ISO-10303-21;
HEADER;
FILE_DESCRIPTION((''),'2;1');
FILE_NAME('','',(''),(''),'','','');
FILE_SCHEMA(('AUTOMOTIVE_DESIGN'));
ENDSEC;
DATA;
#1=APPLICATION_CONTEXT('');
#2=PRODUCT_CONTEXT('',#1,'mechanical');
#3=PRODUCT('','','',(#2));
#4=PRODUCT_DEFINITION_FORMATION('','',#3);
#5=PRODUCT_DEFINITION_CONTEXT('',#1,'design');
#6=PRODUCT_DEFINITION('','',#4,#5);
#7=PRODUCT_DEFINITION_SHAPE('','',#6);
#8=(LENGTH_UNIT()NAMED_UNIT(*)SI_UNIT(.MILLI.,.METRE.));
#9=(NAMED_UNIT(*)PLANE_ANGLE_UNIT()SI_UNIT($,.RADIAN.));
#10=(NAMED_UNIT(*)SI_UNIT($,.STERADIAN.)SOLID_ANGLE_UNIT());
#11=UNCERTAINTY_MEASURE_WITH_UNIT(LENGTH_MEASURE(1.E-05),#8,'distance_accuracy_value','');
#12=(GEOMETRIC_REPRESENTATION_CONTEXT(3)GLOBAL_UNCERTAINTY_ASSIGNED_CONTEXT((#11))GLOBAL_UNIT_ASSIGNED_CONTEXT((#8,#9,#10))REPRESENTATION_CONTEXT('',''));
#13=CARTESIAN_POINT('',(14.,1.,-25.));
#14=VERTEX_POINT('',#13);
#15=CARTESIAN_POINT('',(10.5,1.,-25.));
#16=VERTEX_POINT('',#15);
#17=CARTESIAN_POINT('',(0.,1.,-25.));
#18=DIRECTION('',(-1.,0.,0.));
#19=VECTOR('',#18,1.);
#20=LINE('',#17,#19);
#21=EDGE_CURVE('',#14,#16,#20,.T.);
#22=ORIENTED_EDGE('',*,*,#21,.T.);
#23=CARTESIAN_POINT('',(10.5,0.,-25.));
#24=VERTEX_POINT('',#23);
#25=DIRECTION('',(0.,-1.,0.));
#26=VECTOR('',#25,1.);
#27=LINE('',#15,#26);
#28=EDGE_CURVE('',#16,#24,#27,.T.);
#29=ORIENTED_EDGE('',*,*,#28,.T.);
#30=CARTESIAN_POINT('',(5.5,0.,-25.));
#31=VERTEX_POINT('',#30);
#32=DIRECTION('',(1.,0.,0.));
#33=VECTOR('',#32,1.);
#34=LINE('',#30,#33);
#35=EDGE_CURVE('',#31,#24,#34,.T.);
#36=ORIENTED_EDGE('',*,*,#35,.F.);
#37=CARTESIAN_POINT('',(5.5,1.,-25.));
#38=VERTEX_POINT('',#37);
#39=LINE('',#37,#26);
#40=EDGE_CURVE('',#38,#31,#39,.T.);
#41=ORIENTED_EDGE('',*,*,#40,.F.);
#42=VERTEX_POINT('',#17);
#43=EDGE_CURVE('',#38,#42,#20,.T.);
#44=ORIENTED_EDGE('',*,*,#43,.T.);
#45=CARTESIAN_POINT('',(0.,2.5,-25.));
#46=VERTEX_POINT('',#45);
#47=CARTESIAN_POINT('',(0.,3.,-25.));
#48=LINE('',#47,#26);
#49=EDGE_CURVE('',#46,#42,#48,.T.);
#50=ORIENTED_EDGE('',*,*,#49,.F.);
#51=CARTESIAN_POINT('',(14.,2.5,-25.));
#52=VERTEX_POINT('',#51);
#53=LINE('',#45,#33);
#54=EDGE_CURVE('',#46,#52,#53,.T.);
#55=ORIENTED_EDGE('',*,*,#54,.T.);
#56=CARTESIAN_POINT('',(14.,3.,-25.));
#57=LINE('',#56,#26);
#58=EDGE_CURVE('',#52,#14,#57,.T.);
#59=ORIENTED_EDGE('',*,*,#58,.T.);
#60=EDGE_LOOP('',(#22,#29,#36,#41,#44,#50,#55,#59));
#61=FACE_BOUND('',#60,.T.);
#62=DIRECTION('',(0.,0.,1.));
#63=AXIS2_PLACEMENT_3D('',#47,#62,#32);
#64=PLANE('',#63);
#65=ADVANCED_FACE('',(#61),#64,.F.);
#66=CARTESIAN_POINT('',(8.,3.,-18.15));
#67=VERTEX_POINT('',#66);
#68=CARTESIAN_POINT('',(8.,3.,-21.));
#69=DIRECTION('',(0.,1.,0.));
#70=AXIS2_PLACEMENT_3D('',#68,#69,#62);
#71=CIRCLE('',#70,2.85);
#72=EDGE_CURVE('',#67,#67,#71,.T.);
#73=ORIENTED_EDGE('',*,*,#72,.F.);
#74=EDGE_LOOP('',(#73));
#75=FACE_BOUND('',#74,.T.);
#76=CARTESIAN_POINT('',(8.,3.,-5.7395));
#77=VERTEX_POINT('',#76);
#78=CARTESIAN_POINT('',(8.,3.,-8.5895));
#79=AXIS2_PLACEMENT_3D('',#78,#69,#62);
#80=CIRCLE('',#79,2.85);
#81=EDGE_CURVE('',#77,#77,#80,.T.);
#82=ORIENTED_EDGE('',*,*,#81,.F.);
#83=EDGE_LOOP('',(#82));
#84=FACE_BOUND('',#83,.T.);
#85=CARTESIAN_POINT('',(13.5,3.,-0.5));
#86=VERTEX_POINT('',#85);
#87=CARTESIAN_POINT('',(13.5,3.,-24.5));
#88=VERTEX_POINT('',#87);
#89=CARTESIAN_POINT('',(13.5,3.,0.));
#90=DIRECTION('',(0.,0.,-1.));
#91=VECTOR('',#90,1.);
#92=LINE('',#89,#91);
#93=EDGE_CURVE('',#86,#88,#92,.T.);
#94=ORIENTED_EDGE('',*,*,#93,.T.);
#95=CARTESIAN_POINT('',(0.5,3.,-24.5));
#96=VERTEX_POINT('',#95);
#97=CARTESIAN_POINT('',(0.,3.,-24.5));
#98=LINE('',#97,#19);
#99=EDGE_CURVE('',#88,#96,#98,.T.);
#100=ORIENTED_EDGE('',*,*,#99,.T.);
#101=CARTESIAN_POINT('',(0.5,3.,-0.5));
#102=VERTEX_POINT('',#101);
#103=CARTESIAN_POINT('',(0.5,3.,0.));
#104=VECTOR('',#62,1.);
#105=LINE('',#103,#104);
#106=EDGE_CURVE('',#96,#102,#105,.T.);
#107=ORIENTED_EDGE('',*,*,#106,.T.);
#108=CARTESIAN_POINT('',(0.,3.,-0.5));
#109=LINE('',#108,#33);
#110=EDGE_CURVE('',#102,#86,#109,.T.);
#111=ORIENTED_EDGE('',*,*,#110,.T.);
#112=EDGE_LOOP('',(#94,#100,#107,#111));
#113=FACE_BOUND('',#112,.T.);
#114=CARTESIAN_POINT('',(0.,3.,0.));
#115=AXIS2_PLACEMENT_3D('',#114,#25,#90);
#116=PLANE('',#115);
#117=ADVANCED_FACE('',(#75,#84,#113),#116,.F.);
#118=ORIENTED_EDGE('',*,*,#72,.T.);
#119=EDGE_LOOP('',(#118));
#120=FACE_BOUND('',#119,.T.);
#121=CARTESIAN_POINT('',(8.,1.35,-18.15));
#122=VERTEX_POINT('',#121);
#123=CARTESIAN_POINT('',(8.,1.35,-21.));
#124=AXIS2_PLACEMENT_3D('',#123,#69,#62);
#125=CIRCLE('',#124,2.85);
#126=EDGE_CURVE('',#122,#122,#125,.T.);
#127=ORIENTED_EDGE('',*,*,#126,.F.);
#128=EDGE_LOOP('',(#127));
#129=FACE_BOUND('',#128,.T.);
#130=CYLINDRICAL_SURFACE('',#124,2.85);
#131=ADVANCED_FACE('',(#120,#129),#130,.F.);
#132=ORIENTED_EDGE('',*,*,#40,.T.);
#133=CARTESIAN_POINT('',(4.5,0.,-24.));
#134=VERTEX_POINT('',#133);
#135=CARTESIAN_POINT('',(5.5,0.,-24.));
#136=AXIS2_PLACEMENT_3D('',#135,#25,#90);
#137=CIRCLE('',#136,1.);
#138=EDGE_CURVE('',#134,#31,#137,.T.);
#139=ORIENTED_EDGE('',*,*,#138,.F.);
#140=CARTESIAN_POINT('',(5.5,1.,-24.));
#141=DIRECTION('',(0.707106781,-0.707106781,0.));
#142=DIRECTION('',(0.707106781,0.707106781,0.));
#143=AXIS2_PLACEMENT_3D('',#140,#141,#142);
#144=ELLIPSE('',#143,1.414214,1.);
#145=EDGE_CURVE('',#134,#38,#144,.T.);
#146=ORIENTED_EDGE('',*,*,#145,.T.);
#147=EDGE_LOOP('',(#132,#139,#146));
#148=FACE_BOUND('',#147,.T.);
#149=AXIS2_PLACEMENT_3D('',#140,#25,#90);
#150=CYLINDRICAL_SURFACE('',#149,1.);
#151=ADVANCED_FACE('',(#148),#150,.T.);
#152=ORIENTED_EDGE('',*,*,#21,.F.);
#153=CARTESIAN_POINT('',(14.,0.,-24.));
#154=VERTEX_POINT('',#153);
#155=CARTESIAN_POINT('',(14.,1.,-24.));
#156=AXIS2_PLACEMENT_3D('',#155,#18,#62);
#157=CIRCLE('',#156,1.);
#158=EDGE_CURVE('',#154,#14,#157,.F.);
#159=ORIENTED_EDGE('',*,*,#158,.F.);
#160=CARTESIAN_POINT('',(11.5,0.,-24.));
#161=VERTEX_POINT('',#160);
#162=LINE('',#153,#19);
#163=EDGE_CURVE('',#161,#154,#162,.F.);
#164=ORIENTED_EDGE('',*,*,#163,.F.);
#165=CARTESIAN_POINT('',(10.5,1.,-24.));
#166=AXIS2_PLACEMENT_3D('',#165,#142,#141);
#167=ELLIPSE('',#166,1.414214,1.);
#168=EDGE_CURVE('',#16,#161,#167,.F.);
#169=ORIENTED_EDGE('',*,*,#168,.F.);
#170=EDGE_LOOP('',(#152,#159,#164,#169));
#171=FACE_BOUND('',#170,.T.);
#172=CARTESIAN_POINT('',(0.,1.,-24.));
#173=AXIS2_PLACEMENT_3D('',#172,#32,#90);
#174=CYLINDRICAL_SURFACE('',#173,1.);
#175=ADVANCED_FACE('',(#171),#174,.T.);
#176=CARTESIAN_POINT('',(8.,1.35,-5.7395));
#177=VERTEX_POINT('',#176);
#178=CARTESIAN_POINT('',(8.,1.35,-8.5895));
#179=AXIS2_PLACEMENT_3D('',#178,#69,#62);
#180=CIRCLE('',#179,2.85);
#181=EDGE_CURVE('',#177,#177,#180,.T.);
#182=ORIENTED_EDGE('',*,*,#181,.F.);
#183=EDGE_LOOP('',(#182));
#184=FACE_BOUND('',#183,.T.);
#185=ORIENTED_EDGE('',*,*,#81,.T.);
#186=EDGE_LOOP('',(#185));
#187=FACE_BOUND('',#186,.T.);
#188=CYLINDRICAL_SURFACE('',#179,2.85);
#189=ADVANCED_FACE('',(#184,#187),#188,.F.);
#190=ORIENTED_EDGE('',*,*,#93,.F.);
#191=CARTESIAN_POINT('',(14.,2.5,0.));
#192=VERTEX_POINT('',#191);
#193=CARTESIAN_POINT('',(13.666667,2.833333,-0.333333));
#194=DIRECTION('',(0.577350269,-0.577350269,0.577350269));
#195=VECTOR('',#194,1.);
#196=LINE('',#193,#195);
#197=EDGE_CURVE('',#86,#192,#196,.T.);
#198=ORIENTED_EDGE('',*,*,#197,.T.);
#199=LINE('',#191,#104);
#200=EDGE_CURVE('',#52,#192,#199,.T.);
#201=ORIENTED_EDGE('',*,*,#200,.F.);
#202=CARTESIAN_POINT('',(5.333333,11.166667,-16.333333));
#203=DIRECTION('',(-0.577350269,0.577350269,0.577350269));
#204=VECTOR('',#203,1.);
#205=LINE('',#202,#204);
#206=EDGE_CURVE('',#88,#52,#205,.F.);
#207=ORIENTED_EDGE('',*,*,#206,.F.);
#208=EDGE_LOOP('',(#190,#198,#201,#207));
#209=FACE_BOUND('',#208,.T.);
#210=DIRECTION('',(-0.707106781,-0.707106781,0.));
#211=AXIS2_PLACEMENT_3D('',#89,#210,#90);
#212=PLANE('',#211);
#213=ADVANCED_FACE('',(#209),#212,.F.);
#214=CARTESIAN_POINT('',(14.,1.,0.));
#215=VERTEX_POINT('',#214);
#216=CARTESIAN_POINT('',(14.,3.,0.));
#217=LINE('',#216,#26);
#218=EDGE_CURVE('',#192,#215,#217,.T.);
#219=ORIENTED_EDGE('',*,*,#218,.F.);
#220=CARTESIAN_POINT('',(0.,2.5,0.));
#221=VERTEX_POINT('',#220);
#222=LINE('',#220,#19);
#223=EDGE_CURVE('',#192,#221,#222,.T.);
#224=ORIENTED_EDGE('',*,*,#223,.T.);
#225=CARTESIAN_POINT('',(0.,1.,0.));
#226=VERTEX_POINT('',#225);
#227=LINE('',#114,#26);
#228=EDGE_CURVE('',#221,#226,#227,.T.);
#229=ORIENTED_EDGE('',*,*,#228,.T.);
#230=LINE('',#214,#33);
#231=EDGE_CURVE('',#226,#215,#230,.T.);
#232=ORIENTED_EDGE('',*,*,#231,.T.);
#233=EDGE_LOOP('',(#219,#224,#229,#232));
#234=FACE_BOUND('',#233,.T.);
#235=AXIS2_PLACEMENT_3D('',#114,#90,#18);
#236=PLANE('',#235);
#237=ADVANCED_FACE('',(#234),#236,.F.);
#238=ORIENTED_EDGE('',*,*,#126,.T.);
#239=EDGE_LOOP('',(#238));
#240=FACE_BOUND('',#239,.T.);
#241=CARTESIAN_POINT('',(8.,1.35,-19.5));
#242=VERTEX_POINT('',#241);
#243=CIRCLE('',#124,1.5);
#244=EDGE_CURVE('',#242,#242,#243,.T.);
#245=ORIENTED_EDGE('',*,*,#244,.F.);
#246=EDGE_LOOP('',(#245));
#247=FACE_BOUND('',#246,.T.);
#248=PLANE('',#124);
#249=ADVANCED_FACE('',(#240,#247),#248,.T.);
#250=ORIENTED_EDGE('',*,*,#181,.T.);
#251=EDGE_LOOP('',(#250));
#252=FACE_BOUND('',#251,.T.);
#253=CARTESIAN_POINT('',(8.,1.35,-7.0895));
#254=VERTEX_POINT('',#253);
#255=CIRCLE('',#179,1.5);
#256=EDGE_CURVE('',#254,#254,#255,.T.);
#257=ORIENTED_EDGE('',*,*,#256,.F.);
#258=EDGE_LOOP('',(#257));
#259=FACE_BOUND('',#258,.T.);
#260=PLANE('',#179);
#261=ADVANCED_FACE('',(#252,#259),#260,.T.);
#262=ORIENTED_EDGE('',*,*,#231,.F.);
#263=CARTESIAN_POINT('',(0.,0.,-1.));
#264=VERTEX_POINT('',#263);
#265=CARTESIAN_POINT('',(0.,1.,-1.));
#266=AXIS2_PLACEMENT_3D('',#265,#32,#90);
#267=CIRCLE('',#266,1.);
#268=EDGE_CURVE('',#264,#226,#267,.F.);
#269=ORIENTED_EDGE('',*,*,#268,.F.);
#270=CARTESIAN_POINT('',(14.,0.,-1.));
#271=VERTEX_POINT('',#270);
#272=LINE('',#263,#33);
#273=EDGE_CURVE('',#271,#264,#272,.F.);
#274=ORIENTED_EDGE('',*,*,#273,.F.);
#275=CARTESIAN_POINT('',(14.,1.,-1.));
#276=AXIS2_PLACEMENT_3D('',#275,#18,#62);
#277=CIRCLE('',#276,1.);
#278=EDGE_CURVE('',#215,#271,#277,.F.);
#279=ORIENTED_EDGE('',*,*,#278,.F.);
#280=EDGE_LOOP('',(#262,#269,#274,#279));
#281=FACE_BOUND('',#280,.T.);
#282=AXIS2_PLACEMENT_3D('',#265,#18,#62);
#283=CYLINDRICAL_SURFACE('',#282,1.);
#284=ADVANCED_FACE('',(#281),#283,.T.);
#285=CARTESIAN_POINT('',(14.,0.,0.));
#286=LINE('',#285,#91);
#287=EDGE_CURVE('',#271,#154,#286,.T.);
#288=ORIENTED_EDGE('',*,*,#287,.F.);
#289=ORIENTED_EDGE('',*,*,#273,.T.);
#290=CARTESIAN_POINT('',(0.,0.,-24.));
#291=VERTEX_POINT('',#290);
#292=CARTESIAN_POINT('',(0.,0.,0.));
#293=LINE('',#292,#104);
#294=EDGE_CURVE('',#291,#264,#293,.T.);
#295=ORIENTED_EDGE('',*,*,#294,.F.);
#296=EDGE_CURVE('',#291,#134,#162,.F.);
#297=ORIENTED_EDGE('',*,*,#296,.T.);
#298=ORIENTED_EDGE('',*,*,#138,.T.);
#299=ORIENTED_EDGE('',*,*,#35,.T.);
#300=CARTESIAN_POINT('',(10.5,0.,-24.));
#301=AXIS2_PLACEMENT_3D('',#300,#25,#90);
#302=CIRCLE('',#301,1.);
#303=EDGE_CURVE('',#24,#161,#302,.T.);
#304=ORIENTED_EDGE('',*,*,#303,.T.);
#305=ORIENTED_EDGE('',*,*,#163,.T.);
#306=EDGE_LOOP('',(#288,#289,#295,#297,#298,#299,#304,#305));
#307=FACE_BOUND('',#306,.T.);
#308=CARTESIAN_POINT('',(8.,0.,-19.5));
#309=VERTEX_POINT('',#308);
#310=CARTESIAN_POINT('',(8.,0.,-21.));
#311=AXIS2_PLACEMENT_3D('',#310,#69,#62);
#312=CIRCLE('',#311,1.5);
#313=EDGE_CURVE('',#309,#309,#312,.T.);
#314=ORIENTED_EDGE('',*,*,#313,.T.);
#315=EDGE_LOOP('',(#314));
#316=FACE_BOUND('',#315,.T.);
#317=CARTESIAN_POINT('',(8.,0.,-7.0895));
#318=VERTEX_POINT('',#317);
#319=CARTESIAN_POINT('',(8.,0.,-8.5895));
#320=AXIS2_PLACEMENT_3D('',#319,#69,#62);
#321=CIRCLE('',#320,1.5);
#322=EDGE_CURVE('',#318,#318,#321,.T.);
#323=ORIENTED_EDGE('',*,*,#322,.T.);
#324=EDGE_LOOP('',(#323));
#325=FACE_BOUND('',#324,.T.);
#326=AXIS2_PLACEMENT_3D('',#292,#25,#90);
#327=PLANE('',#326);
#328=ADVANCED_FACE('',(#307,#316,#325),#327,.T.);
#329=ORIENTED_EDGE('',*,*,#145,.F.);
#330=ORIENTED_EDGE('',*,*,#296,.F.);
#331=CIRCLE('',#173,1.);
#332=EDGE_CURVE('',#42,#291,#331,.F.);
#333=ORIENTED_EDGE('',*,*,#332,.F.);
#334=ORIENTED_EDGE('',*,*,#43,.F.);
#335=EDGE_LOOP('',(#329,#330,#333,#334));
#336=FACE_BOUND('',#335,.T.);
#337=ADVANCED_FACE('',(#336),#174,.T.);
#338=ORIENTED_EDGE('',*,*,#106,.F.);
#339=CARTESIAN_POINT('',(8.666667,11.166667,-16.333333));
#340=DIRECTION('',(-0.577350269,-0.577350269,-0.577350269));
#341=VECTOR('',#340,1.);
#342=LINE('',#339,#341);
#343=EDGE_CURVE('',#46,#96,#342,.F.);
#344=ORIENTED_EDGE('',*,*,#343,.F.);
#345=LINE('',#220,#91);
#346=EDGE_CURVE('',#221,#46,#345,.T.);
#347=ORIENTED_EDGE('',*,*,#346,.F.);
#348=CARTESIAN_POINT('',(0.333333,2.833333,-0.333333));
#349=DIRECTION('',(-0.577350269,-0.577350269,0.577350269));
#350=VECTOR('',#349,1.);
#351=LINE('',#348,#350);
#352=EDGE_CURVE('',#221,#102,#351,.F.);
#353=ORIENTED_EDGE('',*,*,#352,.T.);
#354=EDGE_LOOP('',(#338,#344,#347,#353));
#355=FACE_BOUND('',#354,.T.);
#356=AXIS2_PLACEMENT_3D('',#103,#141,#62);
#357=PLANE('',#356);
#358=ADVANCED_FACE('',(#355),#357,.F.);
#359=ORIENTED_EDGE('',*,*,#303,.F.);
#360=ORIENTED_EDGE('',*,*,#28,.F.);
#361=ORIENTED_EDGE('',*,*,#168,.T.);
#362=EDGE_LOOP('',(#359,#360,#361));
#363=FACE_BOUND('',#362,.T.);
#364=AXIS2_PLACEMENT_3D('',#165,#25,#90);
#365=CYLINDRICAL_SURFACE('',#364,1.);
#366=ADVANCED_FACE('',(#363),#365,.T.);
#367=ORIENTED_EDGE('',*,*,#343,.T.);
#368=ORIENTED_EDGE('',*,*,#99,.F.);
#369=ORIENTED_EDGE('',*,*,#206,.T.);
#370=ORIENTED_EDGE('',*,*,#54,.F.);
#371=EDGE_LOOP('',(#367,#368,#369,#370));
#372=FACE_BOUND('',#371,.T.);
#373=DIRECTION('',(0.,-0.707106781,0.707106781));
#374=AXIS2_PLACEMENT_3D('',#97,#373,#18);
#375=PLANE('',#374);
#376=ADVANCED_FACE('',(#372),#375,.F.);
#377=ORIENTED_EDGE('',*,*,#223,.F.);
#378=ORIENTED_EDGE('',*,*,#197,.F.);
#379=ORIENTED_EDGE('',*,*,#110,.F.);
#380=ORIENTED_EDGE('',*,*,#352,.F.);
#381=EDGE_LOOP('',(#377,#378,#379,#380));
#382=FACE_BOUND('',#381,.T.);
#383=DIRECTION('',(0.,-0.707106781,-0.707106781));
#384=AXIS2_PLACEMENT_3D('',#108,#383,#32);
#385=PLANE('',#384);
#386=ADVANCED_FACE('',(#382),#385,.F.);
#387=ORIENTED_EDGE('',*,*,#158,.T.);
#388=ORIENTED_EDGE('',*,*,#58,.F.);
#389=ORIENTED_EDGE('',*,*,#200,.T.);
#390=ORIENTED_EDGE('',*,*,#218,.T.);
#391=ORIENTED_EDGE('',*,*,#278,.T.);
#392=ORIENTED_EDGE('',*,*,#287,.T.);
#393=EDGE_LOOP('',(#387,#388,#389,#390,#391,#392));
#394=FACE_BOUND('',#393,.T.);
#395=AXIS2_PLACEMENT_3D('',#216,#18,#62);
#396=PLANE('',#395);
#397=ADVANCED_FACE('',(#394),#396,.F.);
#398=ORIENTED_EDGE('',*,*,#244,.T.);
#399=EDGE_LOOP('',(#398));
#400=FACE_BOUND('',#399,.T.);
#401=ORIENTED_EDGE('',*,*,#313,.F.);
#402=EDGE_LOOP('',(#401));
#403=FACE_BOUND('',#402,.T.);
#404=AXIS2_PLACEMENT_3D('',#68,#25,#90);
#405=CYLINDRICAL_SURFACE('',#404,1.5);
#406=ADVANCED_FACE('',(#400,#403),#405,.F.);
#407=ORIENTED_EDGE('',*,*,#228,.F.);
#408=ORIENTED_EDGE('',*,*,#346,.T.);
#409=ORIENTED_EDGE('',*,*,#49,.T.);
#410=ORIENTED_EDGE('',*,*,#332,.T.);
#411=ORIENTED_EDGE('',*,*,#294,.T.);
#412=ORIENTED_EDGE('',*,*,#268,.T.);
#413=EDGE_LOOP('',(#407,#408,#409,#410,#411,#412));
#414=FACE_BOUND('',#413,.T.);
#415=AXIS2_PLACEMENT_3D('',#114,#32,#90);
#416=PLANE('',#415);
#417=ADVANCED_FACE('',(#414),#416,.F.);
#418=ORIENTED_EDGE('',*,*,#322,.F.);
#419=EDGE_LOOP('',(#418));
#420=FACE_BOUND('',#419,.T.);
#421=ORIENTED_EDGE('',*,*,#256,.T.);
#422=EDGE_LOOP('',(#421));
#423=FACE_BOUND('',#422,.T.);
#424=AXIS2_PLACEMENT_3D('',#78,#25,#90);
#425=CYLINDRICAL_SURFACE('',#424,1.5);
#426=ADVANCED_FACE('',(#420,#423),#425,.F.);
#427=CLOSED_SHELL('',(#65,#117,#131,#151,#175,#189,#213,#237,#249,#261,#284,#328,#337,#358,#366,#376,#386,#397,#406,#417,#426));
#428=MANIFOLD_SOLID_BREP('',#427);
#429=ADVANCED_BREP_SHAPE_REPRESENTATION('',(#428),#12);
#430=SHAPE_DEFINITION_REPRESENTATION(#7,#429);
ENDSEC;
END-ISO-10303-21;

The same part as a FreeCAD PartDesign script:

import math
import FreeCAD as App
import Part
import Sketcher

V = App.Vector


def edges_at(feature, points):
    """Names of the edges that pass closest to the given points."""
    edges = feature.Shape.Edges
    near = lambda p: min(range(len(edges)), key=lambda i: edges[i].distToShape(Part.Vertex(*p))[0])
    return sorted({f"Edge{near(p) + 1}" for p in points})

doc = App.newDocument("Part")
body = doc.addObject("PartDesign::Body", "Body")

sketch1 = body.newObject("Sketcher::SketchObject", "Sketch")
sketch1.AttachmentSupport = (doc.getObject("XZ_Plane"), [""])
sketch1.MapMode = "FlatFace"
sketch1.addGeometry([
    Part.LineSegment(V(0, -25, 0), V(0, 0, 0)),
    Part.LineSegment(V(0, 0, 0), V(14, 0, 0)),
    Part.LineSegment(V(14, 0, 0), V(14, -25, 0)),
    Part.LineSegment(V(14, -25, 0), V(0, -25, 0)),
    Part.Circle(V(8, -8.6, 0), V(0, 0, 1), 1.5),
    Part.Circle(V(8, -21, 0), V(0, 0, 1), 1.5),
], False)
sketch1.addConstraint([
    Sketcher.Constraint("Coincident", 0, 2, 1, 1),
    Sketcher.Constraint("Coincident", 1, 2, 2, 1),
    Sketcher.Constraint("Coincident", 2, 2, 3, 1),
    Sketcher.Constraint("Coincident", 3, 2, 0, 1),
    Sketcher.Constraint("Vertical", 0),
    Sketcher.Constraint("Horizontal", 1),
    Sketcher.Constraint("Vertical", 2),
    Sketcher.Constraint("Horizontal", 3),
    Sketcher.Constraint("Coincident", 0, 2, -1, 1),
    Sketcher.Constraint("Equal", 4, 5),
    Sketcher.Constraint("Vertical", 4, 3, 5, 3),
    Sketcher.Constraint("Diameter", 4, 3.0),
    Sketcher.Constraint("DistanceX", 1, 1, 1, 2, 14.0),
    Sketcher.Constraint("DistanceY", 0, 1, 0, 2, 25.0),
    Sketcher.Constraint("DistanceX", -1, 1, 4, 3, 8.0),
    Sketcher.Constraint("DistanceY", 5, 3, -1, 1, 21.0),
    Sketcher.Constraint("DistanceY", 4, 3, -1, 1, 8.5895),
])
pad1 = body.newObject("PartDesign::Pad", "Pad")
pad1.Profile = sketch1
pad1.Length = 3
pad1.Reversed = True
doc.recompute()

chamfer = body.newObject("PartDesign::Chamfer", "Chamfer")
chamfer.Base = (pad1, edges_at(pad1, [
    (14, 3, -12.5),
    (7, 3, -25),
    (0, 3, -12.5),
    (7, 3, 0),
]))
chamfer.Size = 0.5
doc.recompute()

fillet = body.newObject("PartDesign::Fillet", "Fillet")
fillet.Base = (chamfer, edges_at(chamfer, [(7, 0, -25), (7, 0, 0)]))
fillet.Radius = 1

sketch2 = body.newObject("Sketcher::SketchObject", "Sketch001")
sketch2.AttachmentSupport = (doc.getObject("XZ_Plane"), [""])
sketch2.MapMode = "FlatFace"
sketch2.AttachmentOffset = App.Placement(V(0, 0, -3), App.Rotation())
sketch2.addGeometry([
    Part.Circle(V(8, -21, 0), V(0, 0, 1), 2.9),
    Part.Circle(V(8, -8.6, 0), V(0, 0, 1), 2.9),
], False)
sketch2.addConstraint([
    Sketcher.Constraint("Equal", 0, 1),
    Sketcher.Constraint("Vertical", 0, 3, 1, 3),
    Sketcher.Constraint("Diameter", 0, 5.7),
    Sketcher.Constraint("DistanceX", -1, 1, 0, 3, 8.0),
    Sketcher.Constraint("DistanceY", 0, 3, -1, 1, 21.0),
    Sketcher.Constraint("DistanceY", 1, 3, -1, 1, 8.5895),
])
pocket1 = body.newObject("PartDesign::Pocket", "Pocket")
pocket1.Profile = sketch2
pocket1.Length = 1.65
pocket1.Reversed = True

sketch3 = body.newObject("Sketcher::SketchObject", "Sketch002")
sketch3.AttachmentSupport = (doc.getObject("XZ_Plane"), [""])
sketch3.MapMode = "FlatFace"
sketch3.AttachmentOffset = App.Placement(V(0, 0, -1), App.Rotation())
sketch3.addGeometry([
    Part.ArcOfCircle(Part.Circle(V(5.5, -24, 0), V(0, 0, 1), 1), math.radians(-180), math.radians(-90)),
    Part.LineSegment(V(5.5, -25, 0), V(10.5, -25, 0)),
    Part.ArcOfCircle(Part.Circle(V(10.5, -24, 0), V(0, 0, 1), 1), math.radians(-90), math.radians(0)),
    Part.LineSegment(V(11.5, -24, 0), V(4.5, -24, 0)),
], False)
sketch3.addConstraint([
    Sketcher.Constraint("Tangent", 0, 2, 1, 1),
    Sketcher.Constraint("Tangent", 1, 2, 2, 1),
    Sketcher.Constraint("Coincident", 2, 2, 3, 1),
    Sketcher.Constraint("Coincident", 3, 2, 0, 1),
    Sketcher.Constraint("Horizontal", 1),
    Sketcher.Constraint("Horizontal", 3),
    Sketcher.Constraint("Equal", 0, 2),
    Sketcher.Constraint("Horizontal", 0, 3, 2, 2),
    Sketcher.Constraint("Radius", 0, 1.0),
    Sketcher.Constraint("DistanceX", 1, 1, 1, 2, 5.0),
    Sketcher.Constraint("DistanceY", 0, 3, -1, 1, 24.0),
    Sketcher.Constraint("DistanceX", -1, 1, 0, 3, 5.5),
])
pad2 = body.newObject("PartDesign::Pad", "Pad001")
pad2.Profile = sketch3
pad2.Length = 1

doc.recompute()
